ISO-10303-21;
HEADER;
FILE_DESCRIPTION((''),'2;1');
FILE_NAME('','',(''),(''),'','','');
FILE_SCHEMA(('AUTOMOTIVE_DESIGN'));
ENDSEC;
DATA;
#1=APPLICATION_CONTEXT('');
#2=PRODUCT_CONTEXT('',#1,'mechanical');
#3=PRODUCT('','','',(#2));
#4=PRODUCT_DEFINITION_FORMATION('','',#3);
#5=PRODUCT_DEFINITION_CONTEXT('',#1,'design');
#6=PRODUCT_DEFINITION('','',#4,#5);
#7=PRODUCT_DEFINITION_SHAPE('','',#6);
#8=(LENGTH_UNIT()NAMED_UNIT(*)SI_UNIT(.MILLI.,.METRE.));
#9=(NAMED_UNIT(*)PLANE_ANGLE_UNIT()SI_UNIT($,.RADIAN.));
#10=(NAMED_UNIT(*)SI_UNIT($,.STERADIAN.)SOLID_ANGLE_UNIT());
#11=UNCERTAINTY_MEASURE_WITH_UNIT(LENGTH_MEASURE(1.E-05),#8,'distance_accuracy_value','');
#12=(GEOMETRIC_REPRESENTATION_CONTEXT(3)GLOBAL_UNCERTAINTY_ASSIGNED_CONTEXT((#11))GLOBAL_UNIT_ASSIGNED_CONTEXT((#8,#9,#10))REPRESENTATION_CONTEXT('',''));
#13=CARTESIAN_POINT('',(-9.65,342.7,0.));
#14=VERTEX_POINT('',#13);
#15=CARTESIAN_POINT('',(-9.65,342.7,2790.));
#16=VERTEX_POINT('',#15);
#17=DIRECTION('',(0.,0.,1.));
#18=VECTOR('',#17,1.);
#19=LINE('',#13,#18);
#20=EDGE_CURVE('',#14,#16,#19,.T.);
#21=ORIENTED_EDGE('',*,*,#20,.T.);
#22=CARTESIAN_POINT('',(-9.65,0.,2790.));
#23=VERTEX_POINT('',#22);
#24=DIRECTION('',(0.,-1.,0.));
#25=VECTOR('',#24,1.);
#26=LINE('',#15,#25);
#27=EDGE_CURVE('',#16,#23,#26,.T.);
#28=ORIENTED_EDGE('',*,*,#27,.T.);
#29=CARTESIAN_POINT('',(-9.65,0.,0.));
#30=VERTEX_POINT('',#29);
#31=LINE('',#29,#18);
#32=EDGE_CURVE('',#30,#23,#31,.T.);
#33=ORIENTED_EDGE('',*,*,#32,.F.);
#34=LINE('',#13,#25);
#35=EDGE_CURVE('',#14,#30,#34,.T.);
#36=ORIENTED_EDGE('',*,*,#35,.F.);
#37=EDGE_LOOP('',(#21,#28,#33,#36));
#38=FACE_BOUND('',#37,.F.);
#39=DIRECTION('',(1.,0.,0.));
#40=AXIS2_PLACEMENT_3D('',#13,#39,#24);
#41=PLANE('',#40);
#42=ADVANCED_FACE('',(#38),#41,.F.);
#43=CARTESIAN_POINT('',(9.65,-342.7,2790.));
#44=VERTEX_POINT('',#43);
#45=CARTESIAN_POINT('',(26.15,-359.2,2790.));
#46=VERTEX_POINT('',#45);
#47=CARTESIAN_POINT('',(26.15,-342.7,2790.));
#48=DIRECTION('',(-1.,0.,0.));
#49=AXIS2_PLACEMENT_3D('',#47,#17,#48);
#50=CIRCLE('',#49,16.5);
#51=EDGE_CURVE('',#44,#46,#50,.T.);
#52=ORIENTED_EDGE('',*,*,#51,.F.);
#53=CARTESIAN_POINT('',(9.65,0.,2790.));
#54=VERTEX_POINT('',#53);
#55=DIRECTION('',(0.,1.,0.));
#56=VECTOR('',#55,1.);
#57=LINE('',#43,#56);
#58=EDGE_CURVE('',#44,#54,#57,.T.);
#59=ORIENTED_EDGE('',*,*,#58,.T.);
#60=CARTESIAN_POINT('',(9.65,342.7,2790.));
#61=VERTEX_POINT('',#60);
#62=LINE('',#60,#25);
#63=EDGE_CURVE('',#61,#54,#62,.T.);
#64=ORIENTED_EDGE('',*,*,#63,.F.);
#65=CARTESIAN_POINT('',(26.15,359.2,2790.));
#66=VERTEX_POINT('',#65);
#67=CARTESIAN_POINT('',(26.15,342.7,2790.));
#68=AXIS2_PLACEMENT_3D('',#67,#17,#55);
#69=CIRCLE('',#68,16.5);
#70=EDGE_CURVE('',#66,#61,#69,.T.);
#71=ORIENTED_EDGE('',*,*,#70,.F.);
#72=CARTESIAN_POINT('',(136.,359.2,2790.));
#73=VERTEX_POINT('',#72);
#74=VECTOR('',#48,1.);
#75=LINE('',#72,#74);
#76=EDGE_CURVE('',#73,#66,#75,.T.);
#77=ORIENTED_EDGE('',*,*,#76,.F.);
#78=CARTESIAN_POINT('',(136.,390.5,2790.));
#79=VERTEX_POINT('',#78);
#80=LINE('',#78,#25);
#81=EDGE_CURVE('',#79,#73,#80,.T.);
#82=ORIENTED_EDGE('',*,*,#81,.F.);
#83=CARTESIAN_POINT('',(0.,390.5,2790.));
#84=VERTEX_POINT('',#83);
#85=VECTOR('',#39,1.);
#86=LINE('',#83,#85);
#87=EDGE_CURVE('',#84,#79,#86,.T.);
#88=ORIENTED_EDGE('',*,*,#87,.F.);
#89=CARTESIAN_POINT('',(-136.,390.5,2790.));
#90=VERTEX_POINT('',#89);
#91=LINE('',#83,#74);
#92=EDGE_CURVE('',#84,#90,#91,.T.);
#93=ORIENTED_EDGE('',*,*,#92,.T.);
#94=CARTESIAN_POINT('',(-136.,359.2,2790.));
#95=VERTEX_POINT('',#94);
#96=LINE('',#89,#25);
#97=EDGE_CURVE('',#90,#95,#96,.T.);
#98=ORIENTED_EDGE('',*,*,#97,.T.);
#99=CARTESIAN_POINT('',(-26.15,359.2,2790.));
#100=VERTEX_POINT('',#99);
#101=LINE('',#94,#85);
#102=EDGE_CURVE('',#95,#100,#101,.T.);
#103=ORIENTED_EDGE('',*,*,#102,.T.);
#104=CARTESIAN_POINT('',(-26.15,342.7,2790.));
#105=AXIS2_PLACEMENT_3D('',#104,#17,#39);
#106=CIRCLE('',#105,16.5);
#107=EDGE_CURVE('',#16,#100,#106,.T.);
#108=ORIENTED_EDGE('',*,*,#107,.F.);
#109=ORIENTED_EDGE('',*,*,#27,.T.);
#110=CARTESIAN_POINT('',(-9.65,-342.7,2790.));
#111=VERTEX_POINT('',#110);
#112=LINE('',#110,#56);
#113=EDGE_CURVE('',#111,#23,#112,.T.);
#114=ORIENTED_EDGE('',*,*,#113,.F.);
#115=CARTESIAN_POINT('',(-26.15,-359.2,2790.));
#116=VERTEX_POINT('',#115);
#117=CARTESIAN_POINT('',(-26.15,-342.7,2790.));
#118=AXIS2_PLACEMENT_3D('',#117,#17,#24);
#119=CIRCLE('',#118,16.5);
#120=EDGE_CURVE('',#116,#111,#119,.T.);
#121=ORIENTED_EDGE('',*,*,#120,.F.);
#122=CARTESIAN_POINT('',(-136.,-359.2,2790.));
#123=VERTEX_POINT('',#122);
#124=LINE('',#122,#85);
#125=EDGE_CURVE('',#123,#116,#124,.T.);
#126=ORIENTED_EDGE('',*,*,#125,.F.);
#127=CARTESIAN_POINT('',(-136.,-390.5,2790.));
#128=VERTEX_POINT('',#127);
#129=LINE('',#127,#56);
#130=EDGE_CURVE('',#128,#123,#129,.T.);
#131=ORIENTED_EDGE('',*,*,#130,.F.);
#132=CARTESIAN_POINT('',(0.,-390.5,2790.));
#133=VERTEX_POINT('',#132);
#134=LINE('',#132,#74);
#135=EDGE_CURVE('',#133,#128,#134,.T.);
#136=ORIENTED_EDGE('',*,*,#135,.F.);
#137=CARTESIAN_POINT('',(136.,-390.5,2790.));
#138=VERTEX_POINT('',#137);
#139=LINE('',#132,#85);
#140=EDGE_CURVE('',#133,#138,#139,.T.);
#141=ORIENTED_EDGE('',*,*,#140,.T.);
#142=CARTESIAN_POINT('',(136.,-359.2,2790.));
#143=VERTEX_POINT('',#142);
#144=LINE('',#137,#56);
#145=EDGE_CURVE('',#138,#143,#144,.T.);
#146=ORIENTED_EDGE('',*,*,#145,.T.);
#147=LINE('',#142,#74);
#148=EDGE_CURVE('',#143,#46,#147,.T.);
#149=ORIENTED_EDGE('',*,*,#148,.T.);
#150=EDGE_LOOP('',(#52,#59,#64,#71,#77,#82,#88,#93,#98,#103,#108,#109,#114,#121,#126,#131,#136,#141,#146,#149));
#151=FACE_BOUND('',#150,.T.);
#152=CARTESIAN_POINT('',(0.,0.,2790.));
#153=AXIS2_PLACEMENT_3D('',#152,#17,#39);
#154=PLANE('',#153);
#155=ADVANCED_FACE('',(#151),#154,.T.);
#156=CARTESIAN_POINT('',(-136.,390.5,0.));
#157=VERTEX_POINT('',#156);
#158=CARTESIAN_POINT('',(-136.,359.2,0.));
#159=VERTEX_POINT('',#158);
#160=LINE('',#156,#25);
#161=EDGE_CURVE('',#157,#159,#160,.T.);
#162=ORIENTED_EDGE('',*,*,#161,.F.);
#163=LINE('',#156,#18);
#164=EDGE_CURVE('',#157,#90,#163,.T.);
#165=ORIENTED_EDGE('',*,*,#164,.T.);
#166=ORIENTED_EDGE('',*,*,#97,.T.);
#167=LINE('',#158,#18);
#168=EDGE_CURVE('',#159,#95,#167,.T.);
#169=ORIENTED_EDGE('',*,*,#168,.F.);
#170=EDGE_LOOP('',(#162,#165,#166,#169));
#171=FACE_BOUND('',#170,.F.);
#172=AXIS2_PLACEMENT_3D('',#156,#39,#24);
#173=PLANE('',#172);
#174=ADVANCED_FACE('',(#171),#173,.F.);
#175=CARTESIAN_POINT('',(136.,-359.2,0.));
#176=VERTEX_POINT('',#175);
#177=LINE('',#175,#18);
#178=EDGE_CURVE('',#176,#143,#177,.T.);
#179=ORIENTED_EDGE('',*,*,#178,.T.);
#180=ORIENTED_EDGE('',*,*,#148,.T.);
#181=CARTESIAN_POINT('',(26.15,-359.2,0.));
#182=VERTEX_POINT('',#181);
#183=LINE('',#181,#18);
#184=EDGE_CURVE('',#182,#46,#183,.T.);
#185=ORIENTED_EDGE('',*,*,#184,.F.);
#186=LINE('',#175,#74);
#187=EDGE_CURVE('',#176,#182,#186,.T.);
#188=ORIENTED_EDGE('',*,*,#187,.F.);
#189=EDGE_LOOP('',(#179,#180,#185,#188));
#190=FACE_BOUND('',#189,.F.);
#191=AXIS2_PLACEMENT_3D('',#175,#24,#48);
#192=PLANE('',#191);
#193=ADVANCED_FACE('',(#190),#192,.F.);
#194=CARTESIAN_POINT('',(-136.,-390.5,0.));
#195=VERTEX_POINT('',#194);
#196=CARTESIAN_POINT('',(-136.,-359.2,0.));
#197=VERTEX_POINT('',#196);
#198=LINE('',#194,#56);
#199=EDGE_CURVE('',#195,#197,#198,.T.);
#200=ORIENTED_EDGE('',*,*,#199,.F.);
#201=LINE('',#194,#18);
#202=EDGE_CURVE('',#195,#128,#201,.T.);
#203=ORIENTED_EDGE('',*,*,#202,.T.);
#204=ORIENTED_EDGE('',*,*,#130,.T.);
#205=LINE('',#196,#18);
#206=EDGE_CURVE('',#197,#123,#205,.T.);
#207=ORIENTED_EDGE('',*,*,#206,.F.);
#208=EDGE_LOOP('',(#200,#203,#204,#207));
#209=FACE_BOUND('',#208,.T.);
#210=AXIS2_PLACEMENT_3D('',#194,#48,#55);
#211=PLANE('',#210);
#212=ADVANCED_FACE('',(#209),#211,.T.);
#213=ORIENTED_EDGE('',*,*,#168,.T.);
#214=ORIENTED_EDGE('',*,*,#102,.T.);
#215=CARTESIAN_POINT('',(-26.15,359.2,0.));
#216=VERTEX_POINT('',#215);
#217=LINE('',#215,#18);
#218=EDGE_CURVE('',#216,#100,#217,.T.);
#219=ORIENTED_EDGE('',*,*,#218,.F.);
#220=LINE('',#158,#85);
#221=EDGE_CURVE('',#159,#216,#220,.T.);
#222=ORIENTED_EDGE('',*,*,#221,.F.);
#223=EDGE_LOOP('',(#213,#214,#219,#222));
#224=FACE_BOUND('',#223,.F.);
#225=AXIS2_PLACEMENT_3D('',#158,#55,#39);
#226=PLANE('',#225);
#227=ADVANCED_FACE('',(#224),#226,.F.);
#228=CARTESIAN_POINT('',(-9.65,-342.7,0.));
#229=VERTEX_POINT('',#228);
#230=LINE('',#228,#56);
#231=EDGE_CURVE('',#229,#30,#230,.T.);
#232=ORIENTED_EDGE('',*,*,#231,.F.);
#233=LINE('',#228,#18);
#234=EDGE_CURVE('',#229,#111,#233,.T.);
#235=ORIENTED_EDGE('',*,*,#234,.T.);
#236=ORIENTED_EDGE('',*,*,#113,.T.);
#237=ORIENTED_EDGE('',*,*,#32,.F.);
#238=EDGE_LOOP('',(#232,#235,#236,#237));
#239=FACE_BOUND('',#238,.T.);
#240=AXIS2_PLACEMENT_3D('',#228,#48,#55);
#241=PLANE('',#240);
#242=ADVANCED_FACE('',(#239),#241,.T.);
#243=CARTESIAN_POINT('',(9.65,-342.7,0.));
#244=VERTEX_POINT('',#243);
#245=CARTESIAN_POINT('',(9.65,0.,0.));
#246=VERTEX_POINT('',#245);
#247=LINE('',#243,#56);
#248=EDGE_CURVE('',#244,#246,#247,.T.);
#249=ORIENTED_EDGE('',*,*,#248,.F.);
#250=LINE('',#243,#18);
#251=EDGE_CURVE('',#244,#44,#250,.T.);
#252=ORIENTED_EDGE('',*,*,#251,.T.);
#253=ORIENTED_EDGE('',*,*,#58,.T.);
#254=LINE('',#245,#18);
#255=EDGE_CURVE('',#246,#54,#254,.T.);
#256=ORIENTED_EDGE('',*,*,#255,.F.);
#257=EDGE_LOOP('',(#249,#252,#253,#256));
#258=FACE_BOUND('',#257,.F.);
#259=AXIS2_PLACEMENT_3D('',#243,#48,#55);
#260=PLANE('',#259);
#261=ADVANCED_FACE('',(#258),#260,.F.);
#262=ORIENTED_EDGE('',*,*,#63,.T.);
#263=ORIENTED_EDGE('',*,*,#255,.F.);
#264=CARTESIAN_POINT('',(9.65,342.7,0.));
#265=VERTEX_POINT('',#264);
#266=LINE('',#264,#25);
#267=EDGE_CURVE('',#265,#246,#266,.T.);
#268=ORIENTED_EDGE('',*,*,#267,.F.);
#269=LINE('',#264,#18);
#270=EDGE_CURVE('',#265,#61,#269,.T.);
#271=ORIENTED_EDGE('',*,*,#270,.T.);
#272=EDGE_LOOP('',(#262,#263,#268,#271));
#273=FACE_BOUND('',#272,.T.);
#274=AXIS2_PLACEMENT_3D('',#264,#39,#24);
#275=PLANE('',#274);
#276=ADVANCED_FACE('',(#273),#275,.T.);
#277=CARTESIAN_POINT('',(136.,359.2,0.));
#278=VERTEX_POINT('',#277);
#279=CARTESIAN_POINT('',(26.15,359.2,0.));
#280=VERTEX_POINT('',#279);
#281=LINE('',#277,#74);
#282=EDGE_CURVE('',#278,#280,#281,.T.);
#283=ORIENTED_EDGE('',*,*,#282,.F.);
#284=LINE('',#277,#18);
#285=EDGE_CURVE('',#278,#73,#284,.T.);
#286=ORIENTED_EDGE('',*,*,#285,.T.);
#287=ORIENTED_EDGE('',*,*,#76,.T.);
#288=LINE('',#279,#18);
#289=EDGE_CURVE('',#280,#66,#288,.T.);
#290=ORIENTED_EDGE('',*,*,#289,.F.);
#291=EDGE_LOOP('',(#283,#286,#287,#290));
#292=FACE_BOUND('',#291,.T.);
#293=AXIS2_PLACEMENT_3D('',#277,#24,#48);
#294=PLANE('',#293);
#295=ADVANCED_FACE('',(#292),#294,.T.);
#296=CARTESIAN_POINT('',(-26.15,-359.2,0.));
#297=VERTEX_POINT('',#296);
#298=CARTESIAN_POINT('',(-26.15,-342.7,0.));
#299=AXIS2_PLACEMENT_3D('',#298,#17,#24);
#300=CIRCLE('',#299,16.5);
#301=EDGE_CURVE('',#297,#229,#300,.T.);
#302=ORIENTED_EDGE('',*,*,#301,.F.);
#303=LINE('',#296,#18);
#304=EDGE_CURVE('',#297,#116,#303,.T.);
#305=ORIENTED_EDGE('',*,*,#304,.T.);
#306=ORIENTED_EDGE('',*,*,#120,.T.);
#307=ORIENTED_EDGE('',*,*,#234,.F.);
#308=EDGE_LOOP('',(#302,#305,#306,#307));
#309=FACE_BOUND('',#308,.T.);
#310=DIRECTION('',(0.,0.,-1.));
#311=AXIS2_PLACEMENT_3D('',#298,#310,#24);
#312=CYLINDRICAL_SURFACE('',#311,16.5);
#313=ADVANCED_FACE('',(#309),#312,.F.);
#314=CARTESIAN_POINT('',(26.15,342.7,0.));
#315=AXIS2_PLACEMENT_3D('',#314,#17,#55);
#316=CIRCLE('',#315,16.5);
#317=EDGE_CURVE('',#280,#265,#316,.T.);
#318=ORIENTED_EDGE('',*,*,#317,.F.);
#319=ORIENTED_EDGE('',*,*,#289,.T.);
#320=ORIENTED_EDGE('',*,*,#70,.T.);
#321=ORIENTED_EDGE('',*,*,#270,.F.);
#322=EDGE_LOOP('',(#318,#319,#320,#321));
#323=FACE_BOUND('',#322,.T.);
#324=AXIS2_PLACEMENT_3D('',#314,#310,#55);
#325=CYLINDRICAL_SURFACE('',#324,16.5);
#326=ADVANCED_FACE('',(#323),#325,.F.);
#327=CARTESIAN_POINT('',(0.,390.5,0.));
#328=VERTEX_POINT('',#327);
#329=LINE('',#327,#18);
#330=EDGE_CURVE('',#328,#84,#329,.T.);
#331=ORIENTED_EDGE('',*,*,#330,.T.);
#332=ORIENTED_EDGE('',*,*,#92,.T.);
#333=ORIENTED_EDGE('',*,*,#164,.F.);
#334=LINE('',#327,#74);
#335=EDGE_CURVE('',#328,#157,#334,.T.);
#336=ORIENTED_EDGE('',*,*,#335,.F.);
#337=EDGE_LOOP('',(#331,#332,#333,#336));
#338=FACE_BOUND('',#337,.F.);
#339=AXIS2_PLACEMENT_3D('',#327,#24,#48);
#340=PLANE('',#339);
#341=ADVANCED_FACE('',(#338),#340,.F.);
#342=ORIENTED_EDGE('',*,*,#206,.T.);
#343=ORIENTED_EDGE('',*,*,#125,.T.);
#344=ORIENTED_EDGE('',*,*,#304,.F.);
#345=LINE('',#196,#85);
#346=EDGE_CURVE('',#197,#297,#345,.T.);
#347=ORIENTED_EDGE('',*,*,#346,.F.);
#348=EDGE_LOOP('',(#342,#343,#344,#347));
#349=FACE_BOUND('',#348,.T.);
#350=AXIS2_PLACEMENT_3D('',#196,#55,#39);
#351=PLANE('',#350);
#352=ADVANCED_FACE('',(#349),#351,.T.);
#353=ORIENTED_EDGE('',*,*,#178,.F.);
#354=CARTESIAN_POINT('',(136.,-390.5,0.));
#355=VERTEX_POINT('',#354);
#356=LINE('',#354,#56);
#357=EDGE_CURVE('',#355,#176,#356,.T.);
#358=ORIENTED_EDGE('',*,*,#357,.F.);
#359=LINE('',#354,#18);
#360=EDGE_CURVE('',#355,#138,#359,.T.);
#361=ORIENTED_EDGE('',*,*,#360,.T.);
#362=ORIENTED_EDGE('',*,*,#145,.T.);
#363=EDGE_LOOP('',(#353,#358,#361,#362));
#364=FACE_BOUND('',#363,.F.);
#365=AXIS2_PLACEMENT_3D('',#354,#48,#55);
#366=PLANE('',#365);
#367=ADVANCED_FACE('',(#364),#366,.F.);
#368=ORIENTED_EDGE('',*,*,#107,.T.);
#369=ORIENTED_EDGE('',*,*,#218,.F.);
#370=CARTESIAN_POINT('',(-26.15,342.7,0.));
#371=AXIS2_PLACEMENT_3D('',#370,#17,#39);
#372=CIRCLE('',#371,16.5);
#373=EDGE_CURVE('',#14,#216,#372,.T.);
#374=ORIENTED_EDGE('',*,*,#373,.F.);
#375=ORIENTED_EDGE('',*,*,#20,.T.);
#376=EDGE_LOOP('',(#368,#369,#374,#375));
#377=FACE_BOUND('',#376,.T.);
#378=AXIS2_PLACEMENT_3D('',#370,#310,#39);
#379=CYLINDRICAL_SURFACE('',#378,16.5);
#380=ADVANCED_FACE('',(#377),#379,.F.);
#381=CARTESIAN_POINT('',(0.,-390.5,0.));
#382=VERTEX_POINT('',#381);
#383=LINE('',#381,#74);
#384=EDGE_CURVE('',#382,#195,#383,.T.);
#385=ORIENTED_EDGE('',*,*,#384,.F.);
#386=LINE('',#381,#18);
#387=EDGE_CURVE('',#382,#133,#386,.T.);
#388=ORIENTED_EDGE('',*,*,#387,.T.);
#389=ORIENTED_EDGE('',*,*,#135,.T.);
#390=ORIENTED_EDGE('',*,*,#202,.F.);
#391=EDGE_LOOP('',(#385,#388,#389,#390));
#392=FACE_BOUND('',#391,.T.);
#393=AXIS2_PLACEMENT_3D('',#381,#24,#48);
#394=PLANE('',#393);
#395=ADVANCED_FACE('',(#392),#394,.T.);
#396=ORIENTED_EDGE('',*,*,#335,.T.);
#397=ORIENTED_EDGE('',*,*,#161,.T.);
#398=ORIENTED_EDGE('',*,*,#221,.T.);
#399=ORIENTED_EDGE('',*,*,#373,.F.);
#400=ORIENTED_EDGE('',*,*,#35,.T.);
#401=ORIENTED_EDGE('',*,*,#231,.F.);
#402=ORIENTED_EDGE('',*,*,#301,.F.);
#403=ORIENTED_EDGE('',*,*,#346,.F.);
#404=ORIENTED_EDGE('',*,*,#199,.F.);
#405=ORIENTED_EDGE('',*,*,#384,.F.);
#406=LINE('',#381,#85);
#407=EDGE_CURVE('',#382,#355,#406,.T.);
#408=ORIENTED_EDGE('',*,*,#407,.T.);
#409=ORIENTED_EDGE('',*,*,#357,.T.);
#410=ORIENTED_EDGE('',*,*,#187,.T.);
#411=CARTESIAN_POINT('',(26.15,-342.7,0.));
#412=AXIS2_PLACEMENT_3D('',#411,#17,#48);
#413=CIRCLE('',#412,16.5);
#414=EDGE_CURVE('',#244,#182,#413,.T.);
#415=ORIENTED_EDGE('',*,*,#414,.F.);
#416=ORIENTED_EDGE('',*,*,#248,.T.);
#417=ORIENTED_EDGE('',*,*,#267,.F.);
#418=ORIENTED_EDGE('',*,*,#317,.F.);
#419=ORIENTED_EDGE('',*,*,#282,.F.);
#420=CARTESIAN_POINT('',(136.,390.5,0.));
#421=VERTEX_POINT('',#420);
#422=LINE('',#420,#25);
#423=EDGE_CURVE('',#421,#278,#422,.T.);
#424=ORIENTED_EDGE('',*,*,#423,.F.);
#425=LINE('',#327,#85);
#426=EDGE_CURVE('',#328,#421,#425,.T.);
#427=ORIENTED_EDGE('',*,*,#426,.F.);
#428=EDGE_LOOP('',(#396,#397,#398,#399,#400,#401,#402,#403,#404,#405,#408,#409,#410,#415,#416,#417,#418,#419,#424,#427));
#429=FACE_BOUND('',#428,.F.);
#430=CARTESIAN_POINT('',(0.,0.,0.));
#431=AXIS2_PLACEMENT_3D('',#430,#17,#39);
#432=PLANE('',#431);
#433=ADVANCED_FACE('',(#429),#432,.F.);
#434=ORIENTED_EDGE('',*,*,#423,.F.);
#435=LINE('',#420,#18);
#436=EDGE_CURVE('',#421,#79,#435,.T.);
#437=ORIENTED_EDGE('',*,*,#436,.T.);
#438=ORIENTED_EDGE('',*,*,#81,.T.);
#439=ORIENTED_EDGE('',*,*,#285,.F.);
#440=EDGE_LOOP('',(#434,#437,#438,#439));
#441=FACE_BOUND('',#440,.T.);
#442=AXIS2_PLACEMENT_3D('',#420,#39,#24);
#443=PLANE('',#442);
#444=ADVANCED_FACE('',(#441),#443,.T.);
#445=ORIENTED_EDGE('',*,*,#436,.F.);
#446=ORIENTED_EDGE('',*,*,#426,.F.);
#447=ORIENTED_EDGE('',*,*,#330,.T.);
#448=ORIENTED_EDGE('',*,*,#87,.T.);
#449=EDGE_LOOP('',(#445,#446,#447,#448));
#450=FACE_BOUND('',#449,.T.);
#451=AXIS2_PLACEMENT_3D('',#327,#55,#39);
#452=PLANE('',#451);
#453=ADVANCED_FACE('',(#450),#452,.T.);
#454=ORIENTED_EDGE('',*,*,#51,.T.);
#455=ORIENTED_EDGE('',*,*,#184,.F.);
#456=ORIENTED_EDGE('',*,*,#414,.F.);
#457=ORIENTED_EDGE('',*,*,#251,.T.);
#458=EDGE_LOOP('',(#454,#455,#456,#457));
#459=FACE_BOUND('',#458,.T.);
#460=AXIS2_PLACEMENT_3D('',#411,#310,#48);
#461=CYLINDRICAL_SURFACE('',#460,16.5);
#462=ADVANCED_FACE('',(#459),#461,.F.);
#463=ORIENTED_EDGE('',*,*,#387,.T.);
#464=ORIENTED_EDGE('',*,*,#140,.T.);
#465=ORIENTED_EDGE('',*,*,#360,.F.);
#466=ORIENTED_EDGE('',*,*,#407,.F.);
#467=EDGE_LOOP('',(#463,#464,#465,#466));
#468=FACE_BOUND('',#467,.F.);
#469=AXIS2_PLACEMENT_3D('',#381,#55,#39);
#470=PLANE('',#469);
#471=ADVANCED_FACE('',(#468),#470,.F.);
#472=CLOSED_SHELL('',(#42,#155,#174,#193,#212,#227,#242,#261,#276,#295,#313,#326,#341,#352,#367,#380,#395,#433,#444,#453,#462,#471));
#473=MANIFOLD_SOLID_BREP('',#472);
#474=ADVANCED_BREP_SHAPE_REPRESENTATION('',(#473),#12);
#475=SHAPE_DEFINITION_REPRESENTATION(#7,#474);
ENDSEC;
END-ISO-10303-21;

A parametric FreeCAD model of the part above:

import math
import FreeCAD as App
import Part
import Sketcher

V = App.Vector
Q = App.Units.Quantity

doc = App.newDocument("Part")
body = doc.addObject("PartDesign::Body", "Body")

# Sketch on XY plane
sketch1 = body.newObject("Sketcher::SketchObject", "Sketch")
sketch1.AttachmentSupport = (doc.getObject("XY_Plane"), [""])
sketch1.MapMode = "FlatFace"
sketch1.addGeometry(Part.LineSegment(V(-136, -359, 0), V(-136, -390, 0)), False)
sketch1.addGeometry(Part.LineSegment(V(-136, -390, 0), V(136, -390, 0)), False)
sketch1.addGeometry(Part.LineSegment(V(136, -390, 0), V(136, -359, 0)), False)
sketch1.addGeometry(Part.LineSegment(V(136, -359, 0), V(26, -359, 0)), False)
sketch1.addGeometry(Part.ArcOfCircle(Part.Circle(V(26, -343, 0), V(0, 0, 1), 16), math.radians(180), math.radians(270)), False)
sketch1.addGeometry(Part.LineSegment(V(10, -343, 0), V(10, 343, 0)), False)
sketch1.addGeometry(Part.ArcOfCircle(Part.Circle(V(26, 343, 0), V(0, 0, 1), 16), math.radians(90), math.radians(180)), False)
sketch1.addGeometry(Part.LineSegment(V(26, 359, 0), V(136, 359, 0)), False)
sketch1.addGeometry(Part.LineSegment(V(136, 359, 0), V(136, 390, 0)), False)
sketch1.addGeometry(Part.LineSegment(V(136, 390, 0), V(-136, 390, 0)), False)
sketch1.addGeometry(Part.LineSegment(V(-136, 390, 0), V(-136, 359, 0)), False)
sketch1.addGeometry(Part.LineSegment(V(-136, 359, 0), V(-26, 359, 0)), False)
sketch1.addGeometry(Part.ArcOfCircle(Part.Circle(V(-26, 343, 0), V(0, 0, 1), 16), math.radians(0), math.radians(90)), False)
sketch1.addGeometry(Part.LineSegment(V(-10, 343, 0), V(-10, -343, 0)), False)
sketch1.addGeometry(Part.ArcOfCircle(Part.Circle(V(-26, -343, 0), V(0, 0, 1), 16), math.radians(-90), math.radians(0)), False)
sketch1.addGeometry(Part.LineSegment(V(-26, -359, 0), V(-136, -359, 0)), False)
sketch1.addConstraint(Sketcher.Constraint("Coincident", 0, 2, 1, 1))
sketch1.addConstraint(Sketcher.Constraint("Coincident", 1, 2, 2, 1))
sketch1.addConstraint(Sketcher.Constraint("Coincident", 2, 2, 3, 1))
sketch1.addConstraint(Sketcher.Constraint("Tangent", 3, 2, 4, 2))
sketch1.addConstraint(Sketcher.Constraint("Tangent", 4, 1, 5, 1))
sketch1.addConstraint(Sketcher.Constraint("Tangent", 5, 2, 6, 2))
sketch1.addConstraint(Sketcher.Constraint("Tangent", 6, 1, 7, 1))
sketch1.addConstraint(Sketcher.Constraint("Coincident", 7, 2, 8, 1))
sketch1.addConstraint(Sketcher.Constraint("Coincident", 8, 2, 9, 1))
sketch1.addConstraint(Sketcher.Constraint("Coincident", 9, 2, 10, 1))
sketch1.addConstraint(Sketcher.Constraint("Coincident", 10, 2, 11, 1))
sketch1.addConstraint(Sketcher.Constraint("Tangent", 11, 2, 12, 2))
sketch1.addConstraint(Sketcher.Constraint("Tangent", 12, 1, 13, 1))
sketch1.addConstraint(Sketcher.Constraint("Tangent", 13, 2, 14, 2))
sketch1.addConstraint(Sketcher.Constraint("Tangent", 14, 1, 15, 1))
sketch1.addConstraint(Sketcher.Constraint("Coincident", 15, 2, 0, 1))
sketch1.addConstraint(Sketcher.Constraint("Vertical", 0))
sketch1.addConstraint(Sketcher.Constraint("Horizontal", 1))
sketch1.addConstraint(Sketcher.Constraint("Vertical", 2))
sketch1.addConstraint(Sketcher.Constraint("Horizontal", 3))
sketch1.addConstraint(Sketcher.Constraint("Vertical", 5))
sketch1.addConstraint(Sketcher.Constraint("Horizontal", 7))
sketch1.addConstraint(Sketcher.Constraint("Vertical", 8))
sketch1.addConstraint(Sketcher.Constraint("Horizontal", 9))
sketch1.addConstraint(Sketcher.Constraint("Vertical", 10))
sketch1.addConstraint(Sketcher.Constraint("Horizontal", 11))
sketch1.addConstraint(Sketcher.Constraint("Vertical", 13))
sketch1.addConstraint(Sketcher.Constraint("Horizontal", 15))
sketch1.addConstraint(Sketcher.Constraint("Equal", 4, 6))
sketch1.addConstraint(Sketcher.Constraint("Equal", 6, 12))
sketch1.addConstraint(Sketcher.Constraint("Equal", 12, 14))
sketch1.addConstraint(Sketcher.Constraint("Symmetric", 4, 3, 12, 3, -1, 1))
sketch1.addConstraint(Sketcher.Constraint("Symmetric", 0, 2, 8, 2, -1, 1))
sketch1.addConstraint(Sketcher.Constraint("Symmetric", 7, 2, 10, 2, -2))
sketch1.addConstraint(Sketcher.Constraint("Symmetric", 2, 2, 15, 2, -2))
sketch1.addConstraint(Sketcher.Constraint("Radius", 4, Q("16.5 mm")))
sketch1.addConstraint(Sketcher.Constraint("DistanceY", 0, 2, 0, 1, Q("31.3 mm")))
sketch1.addConstraint(Sketcher.Constraint("DistanceX", 0, 2, -1, 1, Q("136 mm")))
sketch1.addConstraint(Sketcher.Constraint("DistanceY", 0, 2, -1, 1, Q("390.5 mm")))
sketch1.addConstraint(Sketcher.Constraint("DistanceX", -1, 1, 4, 1, Q("9.65 mm")))
pad1 = body.newObject("PartDesign::Pad", "Pad")
pad1.Profile = sketch1
pad1.Length = 2790

doc.recompute()
